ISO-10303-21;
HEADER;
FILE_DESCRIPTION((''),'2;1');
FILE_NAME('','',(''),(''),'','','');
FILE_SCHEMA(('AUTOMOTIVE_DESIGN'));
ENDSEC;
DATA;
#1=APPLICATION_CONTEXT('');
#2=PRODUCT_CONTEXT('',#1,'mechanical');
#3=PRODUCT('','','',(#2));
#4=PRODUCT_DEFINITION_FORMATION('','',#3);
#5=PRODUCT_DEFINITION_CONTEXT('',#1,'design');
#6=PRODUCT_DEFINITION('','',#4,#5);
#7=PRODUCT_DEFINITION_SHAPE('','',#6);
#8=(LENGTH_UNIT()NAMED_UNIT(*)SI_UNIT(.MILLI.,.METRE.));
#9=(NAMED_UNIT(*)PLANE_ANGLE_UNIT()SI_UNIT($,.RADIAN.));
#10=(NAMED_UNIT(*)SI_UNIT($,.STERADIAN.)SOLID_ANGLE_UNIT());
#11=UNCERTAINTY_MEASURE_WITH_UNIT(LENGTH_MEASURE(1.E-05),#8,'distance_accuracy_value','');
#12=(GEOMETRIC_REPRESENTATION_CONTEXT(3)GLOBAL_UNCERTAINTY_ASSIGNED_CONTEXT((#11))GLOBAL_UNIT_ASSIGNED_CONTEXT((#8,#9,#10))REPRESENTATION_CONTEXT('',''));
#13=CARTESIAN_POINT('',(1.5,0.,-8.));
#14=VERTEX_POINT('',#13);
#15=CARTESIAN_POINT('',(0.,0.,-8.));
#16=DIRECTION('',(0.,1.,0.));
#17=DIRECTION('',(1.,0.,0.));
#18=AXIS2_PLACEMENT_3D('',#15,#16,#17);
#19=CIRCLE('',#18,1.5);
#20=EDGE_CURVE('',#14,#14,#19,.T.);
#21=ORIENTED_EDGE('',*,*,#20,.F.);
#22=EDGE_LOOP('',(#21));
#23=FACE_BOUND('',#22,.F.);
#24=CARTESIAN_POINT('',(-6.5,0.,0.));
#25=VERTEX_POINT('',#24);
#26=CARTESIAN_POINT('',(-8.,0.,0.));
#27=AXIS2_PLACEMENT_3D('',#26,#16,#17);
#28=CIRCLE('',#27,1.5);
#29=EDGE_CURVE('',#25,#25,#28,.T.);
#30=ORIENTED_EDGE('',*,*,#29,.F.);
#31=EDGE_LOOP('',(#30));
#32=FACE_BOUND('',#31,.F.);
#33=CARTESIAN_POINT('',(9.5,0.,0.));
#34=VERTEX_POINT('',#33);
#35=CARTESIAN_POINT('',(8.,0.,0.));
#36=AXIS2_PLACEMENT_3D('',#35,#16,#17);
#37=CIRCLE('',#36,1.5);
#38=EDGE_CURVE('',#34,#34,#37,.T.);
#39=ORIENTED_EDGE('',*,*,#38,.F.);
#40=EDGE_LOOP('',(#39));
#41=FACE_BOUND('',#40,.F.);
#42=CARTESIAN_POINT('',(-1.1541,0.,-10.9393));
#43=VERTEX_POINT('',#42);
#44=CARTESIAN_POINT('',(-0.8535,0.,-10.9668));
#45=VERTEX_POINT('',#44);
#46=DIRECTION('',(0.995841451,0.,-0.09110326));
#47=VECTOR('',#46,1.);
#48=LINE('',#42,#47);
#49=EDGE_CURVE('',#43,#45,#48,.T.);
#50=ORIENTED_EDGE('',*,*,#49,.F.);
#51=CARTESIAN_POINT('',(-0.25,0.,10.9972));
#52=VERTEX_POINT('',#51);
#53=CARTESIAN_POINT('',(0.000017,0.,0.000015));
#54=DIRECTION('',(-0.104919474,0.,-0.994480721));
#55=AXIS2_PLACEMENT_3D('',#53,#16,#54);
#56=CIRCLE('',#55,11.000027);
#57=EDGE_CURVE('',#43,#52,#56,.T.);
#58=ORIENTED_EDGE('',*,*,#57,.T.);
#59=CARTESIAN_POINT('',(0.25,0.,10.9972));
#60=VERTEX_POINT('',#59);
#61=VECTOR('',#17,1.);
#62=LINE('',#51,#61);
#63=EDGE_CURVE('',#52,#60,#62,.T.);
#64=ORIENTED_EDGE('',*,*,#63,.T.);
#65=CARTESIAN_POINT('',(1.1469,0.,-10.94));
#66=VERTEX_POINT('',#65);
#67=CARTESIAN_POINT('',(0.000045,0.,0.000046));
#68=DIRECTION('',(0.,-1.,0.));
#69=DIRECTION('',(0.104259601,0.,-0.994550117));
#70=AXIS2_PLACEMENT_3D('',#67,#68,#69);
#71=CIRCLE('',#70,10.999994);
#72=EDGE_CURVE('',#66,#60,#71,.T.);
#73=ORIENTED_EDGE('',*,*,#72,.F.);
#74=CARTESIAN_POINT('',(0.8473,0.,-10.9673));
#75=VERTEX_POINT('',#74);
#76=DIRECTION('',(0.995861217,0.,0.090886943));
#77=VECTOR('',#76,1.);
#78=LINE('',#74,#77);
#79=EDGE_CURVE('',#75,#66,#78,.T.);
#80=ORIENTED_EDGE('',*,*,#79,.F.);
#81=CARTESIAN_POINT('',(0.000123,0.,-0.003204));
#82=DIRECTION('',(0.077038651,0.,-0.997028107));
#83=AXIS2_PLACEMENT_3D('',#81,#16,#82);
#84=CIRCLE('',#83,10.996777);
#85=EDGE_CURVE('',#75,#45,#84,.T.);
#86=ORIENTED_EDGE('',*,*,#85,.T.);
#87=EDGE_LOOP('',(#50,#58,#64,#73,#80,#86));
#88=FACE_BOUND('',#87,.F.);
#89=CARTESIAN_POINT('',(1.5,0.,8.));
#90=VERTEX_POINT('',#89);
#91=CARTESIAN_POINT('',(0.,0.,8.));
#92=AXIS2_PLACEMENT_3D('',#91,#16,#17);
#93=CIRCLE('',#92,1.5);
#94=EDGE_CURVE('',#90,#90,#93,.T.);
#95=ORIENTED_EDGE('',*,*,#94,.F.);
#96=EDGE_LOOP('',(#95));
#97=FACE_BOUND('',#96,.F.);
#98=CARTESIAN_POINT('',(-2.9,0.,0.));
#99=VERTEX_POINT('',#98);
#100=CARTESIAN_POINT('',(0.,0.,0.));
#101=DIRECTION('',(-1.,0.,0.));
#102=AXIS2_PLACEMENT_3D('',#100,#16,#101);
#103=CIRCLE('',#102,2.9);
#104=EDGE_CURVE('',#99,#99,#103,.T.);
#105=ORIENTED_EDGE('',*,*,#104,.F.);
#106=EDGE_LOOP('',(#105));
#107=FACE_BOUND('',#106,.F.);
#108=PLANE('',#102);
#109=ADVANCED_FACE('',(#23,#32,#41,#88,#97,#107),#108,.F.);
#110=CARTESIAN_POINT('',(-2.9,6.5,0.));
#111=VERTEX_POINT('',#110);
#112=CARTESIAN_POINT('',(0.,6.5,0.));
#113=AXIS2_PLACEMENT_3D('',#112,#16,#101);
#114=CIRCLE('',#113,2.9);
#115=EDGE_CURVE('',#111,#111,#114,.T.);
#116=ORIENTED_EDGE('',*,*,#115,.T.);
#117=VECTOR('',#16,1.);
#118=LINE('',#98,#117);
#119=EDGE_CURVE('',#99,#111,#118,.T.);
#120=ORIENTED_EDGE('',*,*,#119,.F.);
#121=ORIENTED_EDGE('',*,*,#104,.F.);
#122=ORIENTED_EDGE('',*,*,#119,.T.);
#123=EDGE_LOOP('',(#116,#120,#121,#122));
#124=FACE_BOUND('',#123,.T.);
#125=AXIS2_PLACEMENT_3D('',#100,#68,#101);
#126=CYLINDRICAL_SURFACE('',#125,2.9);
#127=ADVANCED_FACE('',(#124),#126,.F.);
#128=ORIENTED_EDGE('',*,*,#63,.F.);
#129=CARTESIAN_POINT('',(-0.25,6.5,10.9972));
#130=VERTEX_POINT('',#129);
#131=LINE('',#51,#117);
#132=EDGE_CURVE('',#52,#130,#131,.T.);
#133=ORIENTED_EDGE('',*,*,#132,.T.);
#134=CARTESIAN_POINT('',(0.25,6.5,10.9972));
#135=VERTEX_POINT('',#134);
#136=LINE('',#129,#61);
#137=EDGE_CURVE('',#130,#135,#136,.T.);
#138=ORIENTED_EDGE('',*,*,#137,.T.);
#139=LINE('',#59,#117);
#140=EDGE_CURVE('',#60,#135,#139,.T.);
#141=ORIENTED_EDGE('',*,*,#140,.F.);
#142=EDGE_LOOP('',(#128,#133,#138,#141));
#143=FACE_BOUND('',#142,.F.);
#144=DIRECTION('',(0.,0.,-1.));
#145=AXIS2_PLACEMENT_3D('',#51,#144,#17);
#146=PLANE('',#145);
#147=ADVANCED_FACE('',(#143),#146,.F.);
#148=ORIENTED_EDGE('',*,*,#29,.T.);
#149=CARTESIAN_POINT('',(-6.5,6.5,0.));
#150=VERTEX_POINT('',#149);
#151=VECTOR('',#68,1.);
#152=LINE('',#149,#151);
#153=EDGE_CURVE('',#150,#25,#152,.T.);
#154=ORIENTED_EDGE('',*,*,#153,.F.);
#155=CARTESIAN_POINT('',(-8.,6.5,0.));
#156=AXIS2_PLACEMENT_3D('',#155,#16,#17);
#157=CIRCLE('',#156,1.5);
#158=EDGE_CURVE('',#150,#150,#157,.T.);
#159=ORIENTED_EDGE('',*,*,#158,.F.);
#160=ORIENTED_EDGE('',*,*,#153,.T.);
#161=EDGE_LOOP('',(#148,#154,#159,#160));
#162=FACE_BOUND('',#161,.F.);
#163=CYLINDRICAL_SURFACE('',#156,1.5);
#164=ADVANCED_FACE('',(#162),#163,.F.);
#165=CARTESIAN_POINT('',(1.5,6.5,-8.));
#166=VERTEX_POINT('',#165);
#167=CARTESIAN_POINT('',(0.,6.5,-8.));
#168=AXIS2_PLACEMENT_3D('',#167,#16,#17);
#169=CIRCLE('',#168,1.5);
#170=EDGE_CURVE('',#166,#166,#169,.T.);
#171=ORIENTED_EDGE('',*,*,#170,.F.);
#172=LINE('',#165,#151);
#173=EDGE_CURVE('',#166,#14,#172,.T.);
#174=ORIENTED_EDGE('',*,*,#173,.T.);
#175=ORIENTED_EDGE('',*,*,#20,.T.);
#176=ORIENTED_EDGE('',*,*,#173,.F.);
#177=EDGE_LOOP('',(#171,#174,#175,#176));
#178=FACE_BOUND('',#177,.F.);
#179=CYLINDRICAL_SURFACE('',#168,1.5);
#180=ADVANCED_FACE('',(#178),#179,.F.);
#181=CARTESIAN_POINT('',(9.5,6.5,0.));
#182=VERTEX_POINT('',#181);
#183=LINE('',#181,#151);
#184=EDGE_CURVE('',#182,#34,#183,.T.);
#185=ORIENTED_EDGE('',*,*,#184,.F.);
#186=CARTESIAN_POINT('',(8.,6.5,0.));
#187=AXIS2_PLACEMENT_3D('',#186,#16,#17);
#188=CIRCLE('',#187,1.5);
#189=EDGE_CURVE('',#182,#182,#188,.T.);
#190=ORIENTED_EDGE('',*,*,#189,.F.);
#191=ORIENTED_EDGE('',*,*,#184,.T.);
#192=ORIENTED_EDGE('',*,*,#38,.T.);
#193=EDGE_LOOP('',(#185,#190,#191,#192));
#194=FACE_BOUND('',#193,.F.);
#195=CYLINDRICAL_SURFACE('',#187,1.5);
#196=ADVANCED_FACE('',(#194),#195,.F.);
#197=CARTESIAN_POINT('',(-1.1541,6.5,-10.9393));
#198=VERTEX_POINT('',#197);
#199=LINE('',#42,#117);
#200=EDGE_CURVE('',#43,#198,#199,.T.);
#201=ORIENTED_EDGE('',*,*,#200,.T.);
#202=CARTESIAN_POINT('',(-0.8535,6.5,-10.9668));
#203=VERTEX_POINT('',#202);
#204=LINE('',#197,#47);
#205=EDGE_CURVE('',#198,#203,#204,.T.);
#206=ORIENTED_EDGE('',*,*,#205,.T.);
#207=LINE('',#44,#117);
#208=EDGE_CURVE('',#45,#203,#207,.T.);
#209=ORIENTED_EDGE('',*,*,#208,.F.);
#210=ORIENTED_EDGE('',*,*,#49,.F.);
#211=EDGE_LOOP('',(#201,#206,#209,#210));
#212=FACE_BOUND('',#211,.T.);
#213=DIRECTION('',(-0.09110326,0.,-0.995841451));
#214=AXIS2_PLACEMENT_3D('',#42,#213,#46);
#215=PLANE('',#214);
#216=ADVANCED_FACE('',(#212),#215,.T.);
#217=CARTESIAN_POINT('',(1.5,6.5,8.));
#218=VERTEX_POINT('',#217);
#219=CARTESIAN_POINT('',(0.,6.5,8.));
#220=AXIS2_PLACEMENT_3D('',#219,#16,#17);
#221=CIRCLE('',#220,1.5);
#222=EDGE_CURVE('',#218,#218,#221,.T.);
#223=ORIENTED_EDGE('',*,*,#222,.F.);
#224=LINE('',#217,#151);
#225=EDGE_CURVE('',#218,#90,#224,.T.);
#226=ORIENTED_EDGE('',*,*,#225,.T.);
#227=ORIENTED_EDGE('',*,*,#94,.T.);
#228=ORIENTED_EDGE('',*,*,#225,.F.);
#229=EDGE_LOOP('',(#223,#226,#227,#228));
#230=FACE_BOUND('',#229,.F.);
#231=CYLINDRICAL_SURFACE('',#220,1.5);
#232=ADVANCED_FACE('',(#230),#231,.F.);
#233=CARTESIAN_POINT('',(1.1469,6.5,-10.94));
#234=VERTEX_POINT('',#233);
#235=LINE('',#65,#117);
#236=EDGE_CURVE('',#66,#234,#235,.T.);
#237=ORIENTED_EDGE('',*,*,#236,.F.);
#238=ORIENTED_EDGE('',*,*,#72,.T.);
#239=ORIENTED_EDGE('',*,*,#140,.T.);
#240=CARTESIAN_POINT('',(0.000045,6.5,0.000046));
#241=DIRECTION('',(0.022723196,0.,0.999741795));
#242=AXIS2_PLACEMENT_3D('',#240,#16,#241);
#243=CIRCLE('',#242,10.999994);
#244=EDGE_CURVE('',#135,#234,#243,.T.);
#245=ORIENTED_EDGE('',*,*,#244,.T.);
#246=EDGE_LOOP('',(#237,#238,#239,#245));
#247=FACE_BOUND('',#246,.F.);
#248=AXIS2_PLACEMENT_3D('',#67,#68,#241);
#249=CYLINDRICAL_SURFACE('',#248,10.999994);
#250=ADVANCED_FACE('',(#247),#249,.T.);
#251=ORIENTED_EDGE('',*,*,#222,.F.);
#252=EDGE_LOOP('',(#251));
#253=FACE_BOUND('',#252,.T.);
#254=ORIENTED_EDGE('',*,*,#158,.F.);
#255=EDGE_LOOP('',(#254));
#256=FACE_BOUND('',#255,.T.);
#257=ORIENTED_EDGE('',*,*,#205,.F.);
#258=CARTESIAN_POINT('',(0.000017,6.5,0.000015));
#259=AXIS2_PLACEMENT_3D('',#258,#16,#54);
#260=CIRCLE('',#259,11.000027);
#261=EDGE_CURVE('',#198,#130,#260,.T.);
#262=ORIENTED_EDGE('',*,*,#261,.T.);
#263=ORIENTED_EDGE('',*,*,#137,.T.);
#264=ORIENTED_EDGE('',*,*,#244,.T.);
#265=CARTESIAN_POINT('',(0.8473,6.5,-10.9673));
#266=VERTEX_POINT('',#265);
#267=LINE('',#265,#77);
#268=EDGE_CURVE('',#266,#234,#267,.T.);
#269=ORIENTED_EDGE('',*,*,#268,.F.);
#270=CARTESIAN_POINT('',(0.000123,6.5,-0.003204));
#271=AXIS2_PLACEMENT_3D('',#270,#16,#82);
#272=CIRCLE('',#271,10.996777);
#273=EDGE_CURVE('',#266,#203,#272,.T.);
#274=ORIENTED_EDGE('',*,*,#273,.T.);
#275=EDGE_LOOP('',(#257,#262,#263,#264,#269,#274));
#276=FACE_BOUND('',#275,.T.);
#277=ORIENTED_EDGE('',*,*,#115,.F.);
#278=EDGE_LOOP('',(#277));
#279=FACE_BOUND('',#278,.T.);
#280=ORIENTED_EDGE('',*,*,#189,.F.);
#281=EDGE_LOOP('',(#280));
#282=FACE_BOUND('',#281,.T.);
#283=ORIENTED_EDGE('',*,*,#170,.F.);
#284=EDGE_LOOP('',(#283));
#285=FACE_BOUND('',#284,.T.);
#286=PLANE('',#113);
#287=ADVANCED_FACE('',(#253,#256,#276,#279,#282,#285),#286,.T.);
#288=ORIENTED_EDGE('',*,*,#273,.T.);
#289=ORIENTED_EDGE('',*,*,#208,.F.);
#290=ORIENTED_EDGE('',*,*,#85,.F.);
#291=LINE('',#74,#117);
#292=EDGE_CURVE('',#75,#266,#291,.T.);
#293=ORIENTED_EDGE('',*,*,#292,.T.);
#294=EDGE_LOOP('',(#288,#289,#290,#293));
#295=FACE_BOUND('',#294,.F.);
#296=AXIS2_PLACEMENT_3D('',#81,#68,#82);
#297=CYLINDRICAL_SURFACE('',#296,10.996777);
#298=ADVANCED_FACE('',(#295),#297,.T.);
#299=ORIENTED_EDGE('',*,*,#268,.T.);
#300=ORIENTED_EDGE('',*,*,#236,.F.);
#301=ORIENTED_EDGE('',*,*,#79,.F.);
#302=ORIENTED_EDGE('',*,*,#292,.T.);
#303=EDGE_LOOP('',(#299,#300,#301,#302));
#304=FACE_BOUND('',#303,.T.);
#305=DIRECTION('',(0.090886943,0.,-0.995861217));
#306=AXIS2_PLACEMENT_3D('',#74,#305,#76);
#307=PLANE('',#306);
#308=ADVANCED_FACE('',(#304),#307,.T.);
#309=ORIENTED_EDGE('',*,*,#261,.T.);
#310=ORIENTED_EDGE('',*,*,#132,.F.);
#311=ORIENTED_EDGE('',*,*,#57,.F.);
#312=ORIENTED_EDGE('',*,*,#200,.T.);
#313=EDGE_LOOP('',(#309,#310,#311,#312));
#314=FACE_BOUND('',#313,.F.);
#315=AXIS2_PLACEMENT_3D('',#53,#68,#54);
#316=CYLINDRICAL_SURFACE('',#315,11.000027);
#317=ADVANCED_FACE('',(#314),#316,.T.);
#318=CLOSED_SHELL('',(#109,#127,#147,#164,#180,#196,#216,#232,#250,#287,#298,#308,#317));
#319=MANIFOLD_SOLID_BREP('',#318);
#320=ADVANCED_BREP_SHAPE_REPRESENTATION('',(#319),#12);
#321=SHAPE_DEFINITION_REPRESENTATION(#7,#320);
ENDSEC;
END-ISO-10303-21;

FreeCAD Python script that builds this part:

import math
import FreeCAD as App
import Part
import Sketcher
Q = App.Units.Quantity

doc = App.newDocument("Part")
body = doc.addObject("PartDesign::Body", "Body")

sketch1 = body.newObject("Sketcher::SketchObject", "Sketch")
sketch1.AttachmentSupport = (doc.getObject("XZ_Plane"), [""])
sketch1.MapMode = "FlatFace"
sketch1.addGeometry(Part.ArcOfCircle(Part.Circle(App.Vector(0, 0, 0), App.Vector(0, 0, 1), 11.000041), math.radians(91.302284), math.radians(263.977553)), False)
sketch1.addGeometry(Part.LineSegment(App.Vector(-0.25, 10.9972, 0), App.Vector(0.25, 10.9972, 0)), False)
sketch1.addGeometry(Part.ArcOfCircle(Part.Circle(App.Vector(0, 0, 0), App.Vector(0, 0, 1), 10.999981), math.radians(-84.015232), math.radians(88.697716)), False)
sketch1.addGeometry(Part.LineSegment(App.Vector(1.146896, -10.939957, 0), App.Vector(0.8473, -10.9673, 0)), False)
sketch1.addGeometry(Part.ArcOfCircle(Part.Circle(App.Vector(0.000123, -0.003204, 0), App.Vector(0, 0, 1), 10.996777), math.radians(-94.452055), math.radians(-85.581633)), False)
sketch1.addGeometry(Part.LineSegment(App.Vector(-0.8535, -10.9668, 0), App.Vector(-1.1541, -10.9393, 0)), False)
sketch1.addGeometry(Part.Circle(App.Vector(0, 8, 0), App.Vector(0, 0, 1), 1.249956), False)
sketch1.addGeometry(Part.Circle(App.Vector(0, -8, 0), App.Vector(0, 0, 1), 1.25), False)
sketch1.addGeometry(Part.Circle(App.Vector(8, 0, 0), App.Vector(0, 0, 1), 1.25), False)
sketch1.addGeometry(Part.Circle(App.Vector(0, 0, 0), App.Vector(0, 0, 1), 2.9), False)
sketch1.addGeometry(Part.Circle(App.Vector(-8, 0, 0), App.Vector(0, 0, 1), 1.25), False)
sketch1.addConstraint(Sketcher.Constraint("Coincident", 0, 1, 1, 1))
sketch1.addConstraint(Sketcher.Constraint("Coincident", 1, 2, 2, 2))
sketch1.addConstraint(Sketcher.Constraint("Coincident", 2, 1, 3, 1))
sketch1.addConstraint(Sketcher.Constraint("Coincident", 3, 2, 4, 2))
sketch1.addConstraint(Sketcher.Constraint("Coincident", 4, 1, 5, 1))
sketch1.addConstraint(Sketcher.Constraint("Coincident", 5, 2, 0, 2))
sketch1.addConstraint(Sketcher.Constraint("Horizontal", 1))
sketch1.addConstraint(Sketcher.Constraint("Coincident", 0, 3, -1, 1))
sketch1.addConstraint(Sketcher.Constraint("Coincident", 2, 3, -1, 1))
sketch1.addConstraint(Sketcher.Constraint("Coincident", 9, 3, -1, 1))
sketch1.addConstraint(Sketcher.Constraint("Equal", 0, 2))
sketch1.addConstraint(Sketcher.Constraint("Equal", 6, 7))
sketch1.addConstraint(Sketcher.Constraint("Equal", 7, 8))
sketch1.addConstraint(Sketcher.Constraint("Equal", 8, 10))
sketch1.addConstraint(Sketcher.Constraint("Symmetric", 6, 3, 7, 3, -1, 1))
sketch1.addConstraint(Sketcher.Constraint("Symmetric", 8, 3, 10, 3, -1, 1))
sketch1.addConstraint(Sketcher.Constraint("PointOnObject", 4, 3, -2))
sketch1.addConstraint(Sketcher.Constraint("PointOnObject", 6, 3, -2))
sketch1.addConstraint(Sketcher.Constraint("PointOnObject", 8, 3, -1))
sketch1.addConstraint(Sketcher.Constraint("Radius", 0, Q("11 mm")))
sketch1.addConstraint(Sketcher.Constraint("Diameter", 6, Q("2.5 mm")))
sketch1.addConstraint(Sketcher.Constraint("Diameter", 9, Q("5.8 mm")))
sketch1.addConstraint(Sketcher.Constraint("DistanceX", 1, 1, 1, 2, Q("0.5 mm")))
sketch1.addConstraint(Sketcher.Constraint("DistanceY", -1, 1, 6, 3, Q("8 mm")))
sketch1.addConstraint(Sketcher.Constraint("DistanceX", -1, 1, 8, 3, Q("8 mm")))
sketch1.addConstraint(Sketcher.Constraint("Radius", 4, Q("10.9968 mm")))
sketch1.addConstraint(Sketcher.Constraint("DistanceY", 2, 1, -1, 1, Q("10.94 mm")))
sketch1.addConstraint(Sketcher.Constraint("DistanceX", 5, 2, -1, 1, Q("1.154 mm")))
sketch1.addConstraint(Sketcher.Constraint("DistanceY", 3, 2, 4, 3, Q("10.964 mm")))
sketch1.addConstraint(Sketcher.Constraint("DistanceY", 3, 2, 5, 2, Q("0.028 mm")))
sketch1.addConstraint(Sketcher.Constraint("Distance", 5, Q("0.3019 mm")))
pad1 = body.newObject("PartDesign::Pad", "Pad")
pad1.Profile = sketch1
pad1.Length = 6.5
pad1.Reversed = True

sketch2 = body.newObject("Sketcher::SketchObject", "Sketch001")
sketch2.AttachmentSupport = (doc.getObject("XZ_Plane"), [""])
sketch2.MapMode = "FlatFace"
sketch2.AttachmentOffset = App.Placement(App.Vector(0, 0, -6.5), App.Rotation())
sketch2.addGeometry(Part.Circle(App.Vector(0, 8, 0), App.Vector(0, 0, 1), 1.5), False)
sketch2.addGeometry(Part.Circle(App.Vector(-8, 0, 0), App.Vector(0, 0, 1), 1.5), False)
sketch2.addGeometry(Part.Circle(App.Vector(0, -8, 0), App.Vector(0, 0, 1), 1.5), False)
sketch2.addGeometry(Part.Circle(App.Vector(8, 0, 0), App.Vector(0, 0, 1), 1.5), False)
sketch2.addConstraint(Sketcher.Constraint("Equal", 0, 1))
sketch2.addConstraint(Sketcher.Constraint("Equal", 1, 2))
sketch2.addConstraint(Sketcher.Constraint("Equal", 2, 3))
sketch2.addConstraint(Sketcher.Constraint("Symmetric", 0, 3, 2, 3, -1, 1))
sketch2.addConstraint(Sketcher.Constraint("Symmetric", 1, 3, 3, 3, -1, 1))
sketch2.addConstraint(Sketcher.Constraint("PointOnObject", 0, 3, -2))
sketch2.addConstraint(Sketcher.Constraint("PointOnObject", 1, 3, -1))
sketch2.addConstraint(Sketcher.Constraint("Diameter", 0, Q("3 mm")))
sketch2.addConstraint(Sketcher.Constraint("DistanceY", -1, 1, 0, 3, Q("8 mm")))
sketch2.addConstraint(Sketcher.Constraint("DistanceX", 1, 3, -1, 1, Q("8 mm")))
pocket1 = body.newObject("PartDesign::Pocket", "Pocket")
pocket1.Profile = sketch2
pocket1.Length = 10
pocket1.Reversed = True

doc.recompute()
